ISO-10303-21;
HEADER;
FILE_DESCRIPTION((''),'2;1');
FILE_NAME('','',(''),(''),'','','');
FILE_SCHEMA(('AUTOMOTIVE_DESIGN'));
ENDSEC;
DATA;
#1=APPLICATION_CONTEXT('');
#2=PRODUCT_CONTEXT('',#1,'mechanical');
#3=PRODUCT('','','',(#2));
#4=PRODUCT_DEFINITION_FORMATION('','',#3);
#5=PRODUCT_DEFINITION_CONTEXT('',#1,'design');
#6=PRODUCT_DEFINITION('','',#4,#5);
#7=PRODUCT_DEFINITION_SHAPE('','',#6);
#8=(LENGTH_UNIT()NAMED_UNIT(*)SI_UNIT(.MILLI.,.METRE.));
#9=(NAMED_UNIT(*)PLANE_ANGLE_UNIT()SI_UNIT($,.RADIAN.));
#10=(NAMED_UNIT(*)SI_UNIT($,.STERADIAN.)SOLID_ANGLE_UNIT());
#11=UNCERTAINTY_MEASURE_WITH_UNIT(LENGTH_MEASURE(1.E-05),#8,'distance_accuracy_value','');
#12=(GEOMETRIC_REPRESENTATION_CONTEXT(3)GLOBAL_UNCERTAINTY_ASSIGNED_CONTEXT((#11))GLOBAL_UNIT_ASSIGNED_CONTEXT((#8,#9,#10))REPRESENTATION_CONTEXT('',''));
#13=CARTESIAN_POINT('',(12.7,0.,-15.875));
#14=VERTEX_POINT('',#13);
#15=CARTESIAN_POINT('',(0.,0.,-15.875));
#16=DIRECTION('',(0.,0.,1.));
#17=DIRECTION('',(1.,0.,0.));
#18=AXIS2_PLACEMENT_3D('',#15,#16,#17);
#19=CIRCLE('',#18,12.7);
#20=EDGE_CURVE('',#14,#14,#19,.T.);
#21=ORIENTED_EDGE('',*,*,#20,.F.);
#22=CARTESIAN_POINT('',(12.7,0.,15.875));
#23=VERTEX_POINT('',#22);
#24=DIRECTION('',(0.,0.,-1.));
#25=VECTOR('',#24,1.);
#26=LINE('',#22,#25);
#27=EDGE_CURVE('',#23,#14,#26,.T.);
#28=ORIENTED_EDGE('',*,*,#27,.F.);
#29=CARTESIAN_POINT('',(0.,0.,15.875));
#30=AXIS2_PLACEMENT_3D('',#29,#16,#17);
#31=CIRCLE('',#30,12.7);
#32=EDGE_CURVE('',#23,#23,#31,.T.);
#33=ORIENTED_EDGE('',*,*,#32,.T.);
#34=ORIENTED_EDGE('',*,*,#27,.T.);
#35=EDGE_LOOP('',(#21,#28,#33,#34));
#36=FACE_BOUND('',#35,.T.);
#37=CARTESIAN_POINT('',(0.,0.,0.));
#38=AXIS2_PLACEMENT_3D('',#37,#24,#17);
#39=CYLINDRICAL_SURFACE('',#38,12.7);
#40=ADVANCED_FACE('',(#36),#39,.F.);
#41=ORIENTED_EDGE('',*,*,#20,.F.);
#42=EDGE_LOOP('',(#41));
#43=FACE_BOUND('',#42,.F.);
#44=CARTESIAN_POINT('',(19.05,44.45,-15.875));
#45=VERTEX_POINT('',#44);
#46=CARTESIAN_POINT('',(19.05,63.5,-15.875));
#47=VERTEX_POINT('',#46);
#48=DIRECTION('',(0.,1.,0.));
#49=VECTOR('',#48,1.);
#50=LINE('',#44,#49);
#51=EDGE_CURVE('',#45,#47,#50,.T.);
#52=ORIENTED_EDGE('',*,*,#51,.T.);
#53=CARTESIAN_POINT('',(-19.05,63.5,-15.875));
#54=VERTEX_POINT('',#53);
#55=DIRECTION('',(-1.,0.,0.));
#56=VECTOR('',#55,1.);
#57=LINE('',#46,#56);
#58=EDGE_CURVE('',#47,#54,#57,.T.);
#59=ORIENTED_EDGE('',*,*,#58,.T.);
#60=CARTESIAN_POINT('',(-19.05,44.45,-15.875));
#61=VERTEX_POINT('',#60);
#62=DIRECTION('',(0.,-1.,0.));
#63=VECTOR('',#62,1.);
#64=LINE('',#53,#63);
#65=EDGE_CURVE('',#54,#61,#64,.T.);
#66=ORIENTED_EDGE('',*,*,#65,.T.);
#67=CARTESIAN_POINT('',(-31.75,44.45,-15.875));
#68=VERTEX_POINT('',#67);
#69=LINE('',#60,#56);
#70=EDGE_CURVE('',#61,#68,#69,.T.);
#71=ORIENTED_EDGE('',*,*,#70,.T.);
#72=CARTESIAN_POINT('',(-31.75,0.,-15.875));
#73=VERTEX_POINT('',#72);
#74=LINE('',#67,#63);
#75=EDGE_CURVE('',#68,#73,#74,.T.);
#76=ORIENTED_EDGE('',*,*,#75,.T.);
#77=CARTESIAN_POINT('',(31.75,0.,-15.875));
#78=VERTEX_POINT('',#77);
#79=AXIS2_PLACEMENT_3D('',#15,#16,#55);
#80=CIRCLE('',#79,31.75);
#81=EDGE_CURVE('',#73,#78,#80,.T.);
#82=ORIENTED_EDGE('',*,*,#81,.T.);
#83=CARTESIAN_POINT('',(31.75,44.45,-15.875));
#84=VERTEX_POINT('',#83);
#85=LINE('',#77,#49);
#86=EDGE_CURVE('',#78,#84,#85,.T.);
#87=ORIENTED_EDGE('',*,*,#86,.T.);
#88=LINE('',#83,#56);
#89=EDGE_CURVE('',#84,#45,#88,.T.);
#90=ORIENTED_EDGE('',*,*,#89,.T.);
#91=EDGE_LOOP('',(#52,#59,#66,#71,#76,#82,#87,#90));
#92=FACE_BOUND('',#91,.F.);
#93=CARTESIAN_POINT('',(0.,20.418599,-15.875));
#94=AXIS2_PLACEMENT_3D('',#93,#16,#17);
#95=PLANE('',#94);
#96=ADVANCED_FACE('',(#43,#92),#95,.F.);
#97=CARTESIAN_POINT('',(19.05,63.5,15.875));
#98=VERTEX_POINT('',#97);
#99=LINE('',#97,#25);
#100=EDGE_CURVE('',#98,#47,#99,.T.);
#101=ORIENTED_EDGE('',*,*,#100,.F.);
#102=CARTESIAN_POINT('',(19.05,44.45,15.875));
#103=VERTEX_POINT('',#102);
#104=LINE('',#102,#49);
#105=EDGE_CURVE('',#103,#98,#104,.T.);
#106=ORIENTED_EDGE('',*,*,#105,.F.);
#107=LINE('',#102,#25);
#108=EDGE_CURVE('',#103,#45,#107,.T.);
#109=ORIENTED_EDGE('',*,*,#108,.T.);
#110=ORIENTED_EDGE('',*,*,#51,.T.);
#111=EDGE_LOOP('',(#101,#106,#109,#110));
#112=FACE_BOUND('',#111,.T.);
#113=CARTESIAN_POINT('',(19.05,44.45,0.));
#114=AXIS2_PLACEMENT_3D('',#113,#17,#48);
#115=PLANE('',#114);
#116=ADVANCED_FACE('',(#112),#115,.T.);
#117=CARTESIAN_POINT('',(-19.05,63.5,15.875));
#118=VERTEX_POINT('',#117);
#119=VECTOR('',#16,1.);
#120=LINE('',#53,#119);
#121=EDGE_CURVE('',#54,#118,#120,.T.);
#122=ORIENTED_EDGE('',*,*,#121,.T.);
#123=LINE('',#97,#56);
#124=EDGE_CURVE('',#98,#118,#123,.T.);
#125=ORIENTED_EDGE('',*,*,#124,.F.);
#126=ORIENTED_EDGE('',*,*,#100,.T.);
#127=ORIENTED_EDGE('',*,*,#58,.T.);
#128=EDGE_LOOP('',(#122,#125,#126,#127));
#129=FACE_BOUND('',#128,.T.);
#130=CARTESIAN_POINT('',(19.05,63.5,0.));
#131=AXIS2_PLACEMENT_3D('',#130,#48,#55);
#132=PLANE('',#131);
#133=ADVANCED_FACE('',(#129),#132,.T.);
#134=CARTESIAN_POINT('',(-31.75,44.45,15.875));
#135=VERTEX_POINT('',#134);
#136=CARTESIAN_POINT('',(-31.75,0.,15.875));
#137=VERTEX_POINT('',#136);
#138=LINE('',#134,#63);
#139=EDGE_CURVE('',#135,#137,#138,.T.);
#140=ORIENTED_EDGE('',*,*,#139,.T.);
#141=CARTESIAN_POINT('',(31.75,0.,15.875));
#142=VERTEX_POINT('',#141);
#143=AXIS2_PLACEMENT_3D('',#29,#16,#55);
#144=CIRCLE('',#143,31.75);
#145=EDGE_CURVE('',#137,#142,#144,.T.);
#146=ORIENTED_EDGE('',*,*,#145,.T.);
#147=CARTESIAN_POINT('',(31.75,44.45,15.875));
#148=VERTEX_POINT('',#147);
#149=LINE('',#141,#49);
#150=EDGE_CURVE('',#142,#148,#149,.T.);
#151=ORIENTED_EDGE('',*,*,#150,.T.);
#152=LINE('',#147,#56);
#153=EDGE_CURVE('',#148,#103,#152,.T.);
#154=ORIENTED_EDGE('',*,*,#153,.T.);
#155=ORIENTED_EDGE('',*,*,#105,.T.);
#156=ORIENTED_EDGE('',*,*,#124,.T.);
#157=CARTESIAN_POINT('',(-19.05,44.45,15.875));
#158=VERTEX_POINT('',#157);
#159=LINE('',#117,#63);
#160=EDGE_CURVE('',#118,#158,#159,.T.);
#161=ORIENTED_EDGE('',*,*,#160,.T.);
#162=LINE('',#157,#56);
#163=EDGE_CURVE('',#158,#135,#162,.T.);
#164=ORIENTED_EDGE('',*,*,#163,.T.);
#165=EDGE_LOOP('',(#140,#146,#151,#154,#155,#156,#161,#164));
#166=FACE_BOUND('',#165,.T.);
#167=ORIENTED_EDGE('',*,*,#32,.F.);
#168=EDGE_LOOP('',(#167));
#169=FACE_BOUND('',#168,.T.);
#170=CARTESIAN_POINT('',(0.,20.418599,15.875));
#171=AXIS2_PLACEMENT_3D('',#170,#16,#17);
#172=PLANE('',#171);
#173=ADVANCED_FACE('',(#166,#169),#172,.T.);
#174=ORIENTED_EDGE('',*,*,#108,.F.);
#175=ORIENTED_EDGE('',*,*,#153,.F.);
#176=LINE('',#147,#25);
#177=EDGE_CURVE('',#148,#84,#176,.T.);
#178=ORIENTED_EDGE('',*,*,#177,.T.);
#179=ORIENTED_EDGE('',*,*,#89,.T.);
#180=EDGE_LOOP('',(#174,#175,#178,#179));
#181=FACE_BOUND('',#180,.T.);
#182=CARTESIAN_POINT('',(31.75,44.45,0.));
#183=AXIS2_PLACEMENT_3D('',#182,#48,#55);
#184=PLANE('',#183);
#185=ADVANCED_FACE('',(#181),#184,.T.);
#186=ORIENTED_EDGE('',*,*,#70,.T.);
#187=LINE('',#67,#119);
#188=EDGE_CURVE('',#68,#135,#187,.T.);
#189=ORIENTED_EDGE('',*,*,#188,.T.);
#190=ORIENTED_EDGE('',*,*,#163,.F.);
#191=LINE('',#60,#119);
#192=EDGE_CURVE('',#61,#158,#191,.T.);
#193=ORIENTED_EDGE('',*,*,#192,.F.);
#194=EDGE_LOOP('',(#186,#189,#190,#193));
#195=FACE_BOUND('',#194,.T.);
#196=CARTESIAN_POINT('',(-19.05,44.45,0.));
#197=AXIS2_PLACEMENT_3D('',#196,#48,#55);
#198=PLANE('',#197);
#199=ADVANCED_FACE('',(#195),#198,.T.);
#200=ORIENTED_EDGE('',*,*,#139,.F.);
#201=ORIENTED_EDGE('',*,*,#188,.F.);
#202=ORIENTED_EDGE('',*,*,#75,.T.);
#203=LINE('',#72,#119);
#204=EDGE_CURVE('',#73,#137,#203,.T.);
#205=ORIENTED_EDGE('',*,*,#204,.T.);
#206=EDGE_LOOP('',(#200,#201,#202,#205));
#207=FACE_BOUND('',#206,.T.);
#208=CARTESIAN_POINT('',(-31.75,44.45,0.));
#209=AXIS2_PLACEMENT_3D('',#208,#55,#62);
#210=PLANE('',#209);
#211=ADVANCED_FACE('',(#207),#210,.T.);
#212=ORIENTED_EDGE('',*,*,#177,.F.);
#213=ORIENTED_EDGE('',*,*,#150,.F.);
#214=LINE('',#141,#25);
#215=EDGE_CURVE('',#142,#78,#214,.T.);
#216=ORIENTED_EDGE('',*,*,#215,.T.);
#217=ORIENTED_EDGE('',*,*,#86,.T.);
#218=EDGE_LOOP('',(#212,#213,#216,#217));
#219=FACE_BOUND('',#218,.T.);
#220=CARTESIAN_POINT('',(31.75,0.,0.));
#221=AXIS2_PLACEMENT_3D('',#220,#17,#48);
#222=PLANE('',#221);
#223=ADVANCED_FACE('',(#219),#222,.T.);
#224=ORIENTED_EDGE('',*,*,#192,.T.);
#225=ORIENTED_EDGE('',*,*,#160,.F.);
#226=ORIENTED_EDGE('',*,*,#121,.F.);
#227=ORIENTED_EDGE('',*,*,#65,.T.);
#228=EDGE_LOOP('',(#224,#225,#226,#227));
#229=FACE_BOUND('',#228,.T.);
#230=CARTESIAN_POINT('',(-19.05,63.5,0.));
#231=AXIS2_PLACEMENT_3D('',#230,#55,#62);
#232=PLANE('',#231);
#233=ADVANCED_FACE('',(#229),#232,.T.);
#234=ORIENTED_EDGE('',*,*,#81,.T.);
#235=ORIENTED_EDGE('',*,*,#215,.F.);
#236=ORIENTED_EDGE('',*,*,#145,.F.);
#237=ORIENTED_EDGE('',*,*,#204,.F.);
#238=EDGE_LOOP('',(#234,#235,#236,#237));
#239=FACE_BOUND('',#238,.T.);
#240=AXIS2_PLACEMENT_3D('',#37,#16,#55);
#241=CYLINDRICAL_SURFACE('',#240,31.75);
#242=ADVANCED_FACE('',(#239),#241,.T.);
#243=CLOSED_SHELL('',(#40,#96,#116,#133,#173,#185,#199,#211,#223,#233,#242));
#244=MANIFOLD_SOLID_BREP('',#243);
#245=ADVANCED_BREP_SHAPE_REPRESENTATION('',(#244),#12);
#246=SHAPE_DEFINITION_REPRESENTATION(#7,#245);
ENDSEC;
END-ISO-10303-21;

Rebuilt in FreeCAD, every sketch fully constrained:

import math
import FreeCAD as App
import Part
import Sketcher
Q = App.Units.Quantity

doc = App.newDocument("Part")
params = doc.addObject("Spreadsheet::Sheet", "Params")
for row, (alias, value) in enumerate([
    ("sketch1_diameter", "1 in"),
    ("sketch1_radius", "1.25 in"),
    ("sketch1_width", "1.5 in"),
    ("sketch1_height", "0.75 in"),
    ("sketch1_height2", "1.75 in"),
    ("pad1_length", "1.25 in"),
], start=1):
    params.set(f"A{row}", alias)
    params.set(f"B{row}", "=" + value)
    params.setAlias(f"B{row}", alias)

body = doc.addObject("PartDesign::Body", "Body")

# Sketch on XY plane
sketch1 = doc.addObject("Sketcher::SketchObject", "Sketch")
body.addObject(sketch1)
sketch1.AttachmentSupport = (doc.XY_Plane, [""])
sketch1.MapMode = "FlatFace"
sketch1.addGeometry([
    Part.LineSegment(App.Vector(19.05, 63.5, 0), App.Vector(-19.05, 63.5, 0)),  # 0
    Part.LineSegment(App.Vector(-19.05, 63.5, 0), App.Vector(-19.05, 44.45, 0)),  # 1
    Part.LineSegment(App.Vector(-19.05, 44.45, 0), App.Vector(-31.75, 44.45, 0)),  # 2
    Part.LineSegment(App.Vector(-31.75, 44.45, 0), App.Vector(-31.75, 0, 0)),  # 3
    Part.ArcOfCircle(Part.Circle(App.Vector(0, 0, 0), App.Vector(0, 0, 1), 31.75), math.radians(180), math.radians(360)),  # 4
    Part.LineSegment(App.Vector(31.75, 0, 0), App.Vector(31.75, 44.45, 0)),  # 5
    Part.LineSegment(App.Vector(31.75, 44.45, 0), App.Vector(19.05, 44.45, 0)),  # 6
    Part.LineSegment(App.Vector(19.05, 44.45, 0), App.Vector(19.05, 63.5, 0)),  # 7
    Part.Circle(App.Vector(0, 0, 0), App.Vector(0, 0, 1), 12.7),  # 8
], False)
sketch1.addConstraint([
    Sketcher.Constraint("Coincident", 0, 2, 1, 1),
    Sketcher.Constraint("Coincident", 1, 2, 2, 1),
    Sketcher.Constraint("Coincident", 2, 2, 3, 1),
    Sketcher.Constraint("Tangent", 3, 2, 4, 1),
    Sketcher.Constraint("Tangent", 4, 2, 5, 1),
    Sketcher.Constraint("Coincident", 5, 2, 6, 1),
    Sketcher.Constraint("Coincident", 6, 2, 7, 1),
    Sketcher.Constraint("Coincident", 7, 2, 0, 1),
    Sketcher.Constraint("Horizontal", 0),
    Sketcher.Constraint("Vertical", 1),
    Sketcher.Constraint("Horizontal", 2),
    Sketcher.Constraint("Vertical", 3),
    Sketcher.Constraint("Vertical", 5),
    Sketcher.Constraint("Horizontal", 6),
    Sketcher.Constraint("Vertical", 7),
    Sketcher.Constraint("Coincident", 4, 3, -1, 1),
    Sketcher.Constraint("Coincident", 8, 3, -1, 1),
    Sketcher.Constraint("Symmetric", 1, 2, 6, 2, -2),
    Sketcher.Constraint("Diameter", 8, Q("1 in")),
    Sketcher.Constraint("Radius", 4, Q("1.25 in")),
    Sketcher.Constraint("DistanceX", 0, 2, 0, 1, Q("1.5 in")),
    Sketcher.Constraint("DistanceY", 1, 2, 1, 1, Q("0.75 in")),
    Sketcher.Constraint("DistanceY", 3, 2, 3, 1, Q("1.75 in")),
])
sketch1.setExpression("Constraints[18]", "Params.sketch1_diameter")
sketch1.setExpression("Constraints[19]", "Params.sketch1_radius")
sketch1.setExpression("Constraints[20]", "Params.sketch1_width")
sketch1.setExpression("Constraints[21]", "Params.sketch1_height")
sketch1.setExpression("Constraints[22]", "Params.sketch1_height2")
pad1 = doc.addObject("PartDesign::Pad", "Pad")
body.addObject(pad1)
pad1.Profile = sketch1
pad1.setExpression("Length", "Params.pad1_length")
pad1.Midplane = True

doc.recompute()
